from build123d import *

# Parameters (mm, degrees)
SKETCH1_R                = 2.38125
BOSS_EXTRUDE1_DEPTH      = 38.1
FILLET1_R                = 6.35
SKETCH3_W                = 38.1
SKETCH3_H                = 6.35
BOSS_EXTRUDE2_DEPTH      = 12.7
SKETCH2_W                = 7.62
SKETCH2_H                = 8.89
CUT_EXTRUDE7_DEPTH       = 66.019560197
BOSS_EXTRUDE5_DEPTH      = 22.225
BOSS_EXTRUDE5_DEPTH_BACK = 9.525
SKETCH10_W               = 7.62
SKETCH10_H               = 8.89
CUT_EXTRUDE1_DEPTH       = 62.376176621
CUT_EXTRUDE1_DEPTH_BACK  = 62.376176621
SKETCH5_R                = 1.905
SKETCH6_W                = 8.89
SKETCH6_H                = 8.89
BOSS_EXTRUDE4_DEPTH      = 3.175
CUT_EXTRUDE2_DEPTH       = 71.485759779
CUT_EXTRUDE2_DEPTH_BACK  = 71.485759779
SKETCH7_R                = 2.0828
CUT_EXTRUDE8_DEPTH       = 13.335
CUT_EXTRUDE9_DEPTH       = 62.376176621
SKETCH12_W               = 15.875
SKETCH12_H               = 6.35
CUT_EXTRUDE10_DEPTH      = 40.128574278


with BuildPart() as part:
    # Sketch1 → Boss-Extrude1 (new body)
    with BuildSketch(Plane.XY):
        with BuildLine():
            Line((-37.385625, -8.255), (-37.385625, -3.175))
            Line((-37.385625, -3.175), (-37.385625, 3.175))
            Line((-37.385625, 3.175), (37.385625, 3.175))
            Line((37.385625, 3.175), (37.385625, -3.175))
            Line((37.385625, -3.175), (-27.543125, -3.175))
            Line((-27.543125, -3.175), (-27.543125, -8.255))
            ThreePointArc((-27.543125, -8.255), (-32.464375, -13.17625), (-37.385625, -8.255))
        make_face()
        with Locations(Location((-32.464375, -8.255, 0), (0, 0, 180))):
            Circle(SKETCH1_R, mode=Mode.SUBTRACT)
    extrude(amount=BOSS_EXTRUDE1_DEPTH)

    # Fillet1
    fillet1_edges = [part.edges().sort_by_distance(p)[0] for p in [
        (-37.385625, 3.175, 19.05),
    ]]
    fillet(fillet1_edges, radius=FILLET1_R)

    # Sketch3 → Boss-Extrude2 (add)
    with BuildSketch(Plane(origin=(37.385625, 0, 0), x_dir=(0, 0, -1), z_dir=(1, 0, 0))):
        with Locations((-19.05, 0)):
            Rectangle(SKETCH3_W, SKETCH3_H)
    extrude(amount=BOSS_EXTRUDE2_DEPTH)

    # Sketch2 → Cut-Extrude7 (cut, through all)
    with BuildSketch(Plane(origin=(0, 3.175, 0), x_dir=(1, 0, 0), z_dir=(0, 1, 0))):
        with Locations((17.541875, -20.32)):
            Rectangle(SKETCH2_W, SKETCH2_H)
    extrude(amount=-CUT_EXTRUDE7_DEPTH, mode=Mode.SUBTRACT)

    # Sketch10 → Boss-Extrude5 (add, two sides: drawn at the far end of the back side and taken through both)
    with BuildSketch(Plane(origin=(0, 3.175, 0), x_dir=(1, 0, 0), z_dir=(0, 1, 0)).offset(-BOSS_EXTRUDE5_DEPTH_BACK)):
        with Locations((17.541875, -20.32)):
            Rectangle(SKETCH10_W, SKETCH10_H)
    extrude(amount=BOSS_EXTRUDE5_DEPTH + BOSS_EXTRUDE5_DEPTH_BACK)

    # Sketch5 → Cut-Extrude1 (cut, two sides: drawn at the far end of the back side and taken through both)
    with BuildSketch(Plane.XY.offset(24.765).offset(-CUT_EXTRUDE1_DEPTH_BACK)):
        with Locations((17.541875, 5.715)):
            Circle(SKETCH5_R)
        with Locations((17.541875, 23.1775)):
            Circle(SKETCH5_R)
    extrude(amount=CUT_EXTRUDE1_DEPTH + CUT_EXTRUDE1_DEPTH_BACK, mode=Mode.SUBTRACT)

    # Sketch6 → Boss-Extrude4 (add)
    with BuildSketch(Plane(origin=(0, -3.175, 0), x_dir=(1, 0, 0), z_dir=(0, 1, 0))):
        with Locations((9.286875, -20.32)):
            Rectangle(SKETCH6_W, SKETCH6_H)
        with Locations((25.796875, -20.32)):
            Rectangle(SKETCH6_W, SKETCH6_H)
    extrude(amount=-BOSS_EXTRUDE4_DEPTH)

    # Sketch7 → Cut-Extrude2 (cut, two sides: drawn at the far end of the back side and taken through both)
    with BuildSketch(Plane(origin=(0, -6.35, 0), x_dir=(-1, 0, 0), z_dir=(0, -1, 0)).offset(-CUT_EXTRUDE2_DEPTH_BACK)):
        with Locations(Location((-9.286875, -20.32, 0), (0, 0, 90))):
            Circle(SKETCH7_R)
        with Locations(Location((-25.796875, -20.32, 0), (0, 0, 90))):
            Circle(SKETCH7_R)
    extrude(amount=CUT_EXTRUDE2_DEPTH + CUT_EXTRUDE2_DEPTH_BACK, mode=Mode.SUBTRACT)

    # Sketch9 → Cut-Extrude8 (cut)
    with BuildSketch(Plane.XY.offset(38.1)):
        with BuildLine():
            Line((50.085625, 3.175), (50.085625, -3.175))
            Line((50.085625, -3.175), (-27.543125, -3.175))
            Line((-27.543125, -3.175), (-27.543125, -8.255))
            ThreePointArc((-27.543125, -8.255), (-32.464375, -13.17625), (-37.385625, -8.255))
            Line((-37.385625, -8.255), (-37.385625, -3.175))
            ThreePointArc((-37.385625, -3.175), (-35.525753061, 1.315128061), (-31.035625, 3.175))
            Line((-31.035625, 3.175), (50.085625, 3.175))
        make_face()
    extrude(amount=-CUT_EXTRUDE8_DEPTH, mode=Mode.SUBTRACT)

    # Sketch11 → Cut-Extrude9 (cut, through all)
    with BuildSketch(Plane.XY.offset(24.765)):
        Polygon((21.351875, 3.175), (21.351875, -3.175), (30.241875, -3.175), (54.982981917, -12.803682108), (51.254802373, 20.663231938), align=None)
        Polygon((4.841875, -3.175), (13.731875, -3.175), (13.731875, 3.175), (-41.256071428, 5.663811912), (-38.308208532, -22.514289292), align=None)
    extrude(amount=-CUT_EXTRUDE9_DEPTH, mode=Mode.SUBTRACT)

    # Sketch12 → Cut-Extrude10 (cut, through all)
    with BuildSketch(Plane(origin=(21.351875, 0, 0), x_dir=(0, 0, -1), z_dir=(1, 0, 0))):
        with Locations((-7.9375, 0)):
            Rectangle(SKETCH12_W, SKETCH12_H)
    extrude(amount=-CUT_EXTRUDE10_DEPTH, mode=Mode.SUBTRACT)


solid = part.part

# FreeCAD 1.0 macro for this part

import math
import FreeCAD as App
import Part
import Sketcher

V = App.Vector
Q = App.Units.Quantity


def edges_at(feature, points):
    """Names of the edges that pass closest to the given points."""
    edges = feature.Shape.Edges
    near = lambda p: min(range(len(edges)), key=lambda i: edges[i].distToShape(Part.Vertex(*p))[0])
    return sorted({f"Edge{near(p) + 1}" for p in points})


def add_polygon(sketch, points):
    """Adds a closed chain of lines whose ends are joined by coincident constraints."""
    first, n = sketch.GeometryCount, len(points)
    for a, b in zip(points, points[1:] + points[:1]):
        sketch.addGeometry(Part.LineSegment(App.Vector(*a, 0), App.Vector(*b, 0)), False)
    for i in range(n):
        sketch.addConstraint(Sketcher.Constraint("Coincident", first + i, 2, first + (i + 1) % n, 1))

doc = App.newDocument("Part")
body = doc.addObject("PartDesign::Body", "Body")

# Sketch on XY plane
sketch1 = doc.addObject("Sketcher::SketchObject", "Sketch")
body.addObject(sketch1)
sketch1.AttachmentSupport = (doc.XY_Plane, [""])
sketch1.MapMode = "FlatFace"
sketch1.addGeometry([
    Part.LineSegment(V(-37.385625, 3.175, 0), V(-37.385625, -8.255, 0)),  # 0
    Part.ArcOfCircle(Part.Circle(V(-32.464375, -8.255, 0), V(0, 0, 1), 4.92125), math.radians(180), math.radians(360)),  # 1
    Part.LineSegment(V(-27.543125, -8.255, 0), V(-27.543125, -3.175, 0)),  # 2
    Part.LineSegment(V(-27.543125, -3.175, 0), V(37.385625, -3.175, 0)),  # 3
    Part.LineSegment(V(37.385625, -3.175, 0), V(37.385625, 3.175, 0)),  # 4
    Part.LineSegment(V(37.385625, 3.175, 0), V(-37.385625, 3.175, 0)),  # 5
    Part.Circle(V(-32.464375, -8.255, 0), V(0, 0, 1), 2.38125),  # 6
], False)
sketch1.addConstraint([
    Sketcher.Constraint("Tangent", 0, 2, 1, 1),
    Sketcher.Constraint("Tangent", 1, 2, 2, 1),
    Sketcher.Constraint("Coincident", 2, 2, 3, 1),
    Sketcher.Constraint("Coincident", 3, 2, 4, 1),
    Sketcher.Constraint("Coincident", 4, 2, 5, 1),
    Sketcher.Constraint("Coincident", 5, 2, 0, 1),
    Sketcher.Constraint("Vertical", 0),
    Sketcher.Constraint("Vertical", 2),
    Sketcher.Constraint("Horizontal", 3),
    Sketcher.Constraint("Vertical", 4),
    Sketcher.Constraint("Horizontal", 5),
    Sketcher.Constraint("Coincident", 6, 3, 1, 3),
    Sketcher.Constraint("Symmetric", 3, 2, 5, 2, -1, 1),
    Sketcher.Constraint("Diameter", 6, Q("0.1875 in")),
    Sketcher.Constraint("DistanceY", 2, 1, 2, 2, Q("0.2 in")),
    Sketcher.Constraint("DistanceY", 0, 2, 0, 1, Q("0.45 in")),
    Sketcher.Constraint("DistanceX", 1, 3, 3, 2, Q("2.75 in")),
    Sketcher.Constraint("Radius", 1, Q("4.92125 mm")),
])
pad1 = doc.addObject("PartDesign::Pad", "Pad")
body.addObject(pad1)
pad1.Profile = sketch1
pad1.Length = Q("1.5 in")
doc.recompute()

fillet = doc.addObject("PartDesign::Fillet", "Fillet")
body.addObject(fillet)
fillet.Base = (pad1, edges_at(pad1, [(-37.386, 3.175, 19.05)]))
fillet.Radius = Q("0.25 in")

# Sketch on YZ plane
sketch2 = doc.addObject("Sketcher::SketchObject", "Sketch001")
body.addObject(sketch2)
sketch2.AttachmentSupport = (doc.YZ_Plane, [""])
sketch2.MapMode = "FlatFace"
sketch2.AttachmentOffset = App.Placement(V(0, 0, 37.385625), App.Rotation())
add_polygon(sketch2, [(3.175, 38.1), (-3.175, 38.1), (-3.175, 0), (3.175, 0)])  # lines 0-3
sketch2.addConstraint([
    Sketcher.Constraint("Horizontal", 0),
    Sketcher.Constraint("Vertical", 1),
    Sketcher.Constraint("Horizontal", 2),
    Sketcher.Constraint("Vertical", 3),
    Sketcher.Constraint("Symmetric", 1, 2, 2, 2, -1, 1),
    Sketcher.Constraint("DistanceY", 1, 2, 1, 1, Q("1.5 in")),
    Sketcher.Constraint("DistanceX", 0, 2, 0, 1, Q("0.25 in")),
])
pad2 = doc.addObject("PartDesign::Pad", "Pad001")
body.addObject(pad2)
pad2.Profile = sketch2
pad2.Length = Q("0.5 in")

# Sketch on XZ plane
sketch3 = doc.addObject("Sketcher::SketchObject", "Sketch002")
body.addObject(sketch3)
sketch3.AttachmentSupport = (doc.XZ_Plane, [""])
sketch3.MapMode = "FlatFace"
sketch3.AttachmentOffset = App.Placement(V(0, 0, -0.125 * 25.4), App.Rotation())
add_polygon(sketch3, [(13.731875, 15.875), (13.731875, 24.765), (21.351875, 24.765), (21.351875, 15.875)])  # lines 0-3
sketch3.addConstraint([
    Sketcher.Constraint("Vertical", 0),
    Sketcher.Constraint("Horizontal", 1),
    Sketcher.Constraint("Vertical", 2),
    Sketcher.Constraint("Horizontal", 3),
    Sketcher.Constraint("DistanceX", 1, 1, 1, 2, Q("0.3 in")),
    Sketcher.Constraint("DistanceY", 0, 1, 0, 2, Q("0.35 in")),
    Sketcher.Constraint("DistanceY", -1, 1, 0, 2, Q("0.975 in")),
    Sketcher.Constraint("DistanceX", -1, 1, 0, 2, Q("13.731875 mm")),
])
pocket1 = doc.addObject("PartDesign::Pocket", "Pocket")
body.addObject(pocket1)
pocket1.Profile = sketch3
pocket1.Type = "ThroughAll"
pocket1.Reversed = True

# Sketch on XZ plane
sketch4 = doc.addObject("Sketcher::SketchObject", "Sketch003")
body.addObject(sketch4)
sketch4.AttachmentSupport = (doc.XZ_Plane, [""])
sketch4.MapMode = "FlatFace"
sketch4.AttachmentOffset = App.Placement(V(0, 0, -0.125 * 25.4), App.Rotation())
add_polygon(sketch4, [(13.731875, 15.875), (13.731875, 24.765), (21.351875, 24.765), (21.351875, 15.875)])  # lines 0-3
sketch4.addConstraint([
    Sketcher.Constraint("Vertical", 0),
    Sketcher.Constraint("Horizontal", 1),
    Sketcher.Constraint("Vertical", 2),
    Sketcher.Constraint("Horizontal", 3),
    Sketcher.Constraint("DistanceX", 1, 1, 1, 2, Q("0.3 in")),
    Sketcher.Constraint("DistanceY", 0, 1, 0, 2, Q("0.35 in")),
    Sketcher.Constraint("DistanceY", -1, 1, 0, 2, Q("0.975 in")),
    Sketcher.Constraint("DistanceX", -1, 1, 0, 2, Q("13.731875 mm")),
])
pad3 = doc.addObject("PartDesign::Pad", "Pad002")
body.addObject(pad3)
pad3.Profile = sketch4
pad3.Type = "TwoLengths"
pad3.Length = Q("0.875 in")
pad3.Length2 = Q("0.375 in")
pad3.Reversed = True

# Sketch on XY plane
sketch5 = doc.addObject("Sketcher::SketchObject", "Sketch004")
body.addObject(sketch5)
sketch5.AttachmentSupport = (doc.XY_Plane, [""])
sketch5.MapMode = "FlatFace"
sketch5.AttachmentOffset = App.Placement(V(0, 0, 0.975 * 25.4), App.Rotation())
sketch5.addGeometry([
    Part.Circle(V(17.541875, 5.715, 0), V(0, 0, 1), 1.905),
    Part.Circle(V(17.541875, 23.1775, 0), V(0, 0, 1), 1.905),
], False)
sketch5.addConstraint([
    Sketcher.Constraint("Equal", 0, 1),
    Sketcher.Constraint("Vertical", 0, 3, 1, 3),
    Sketcher.Constraint("Diameter", 0, Q("0.15 in")),
    Sketcher.Constraint("DistanceY", -1, 1, 0, 3, Q("0.225 in")),
    Sketcher.Constraint("DistanceY", 0, 3, 1, 3, Q("0.6875 in")),
    Sketcher.Constraint("DistanceX", -1, 1, 0, 3, Q("17.541875 mm")),
])
pocket2 = doc.addObject("PartDesign::Pocket", "Pocket001")
body.addObject(pocket2)
pocket2.Profile = sketch5
pocket2.Type = "ThroughAll"
pocket2.Midplane = True

# Sketch on XZ plane
sketch6 = doc.addObject("Sketcher::SketchObject", "Sketch005")
body.addObject(sketch6)
sketch6.AttachmentSupport = (doc.XZ_Plane, [""])
sketch6.MapMode = "FlatFace"
sketch6.AttachmentOffset = App.Placement(V(0, 0, 0.125 * 25.4), App.Rotation())
add_polygon(sketch6, [(4.841875, 15.875), (4.841875, 24.765), (13.731875, 24.765), (13.731875, 15.875)])  # lines 0-3
add_polygon(sketch6, [(21.351875, 15.875), (21.351875, 24.765), (30.241875, 24.765), (30.241875, 15.875)])  # lines 4-7
sketch6.addConstraint([
    Sketcher.Constraint("Vertical", 0),
    Sketcher.Constraint("Horizontal", 1),
    Sketcher.Constraint("Vertical", 2),
    Sketcher.Constraint("Horizontal", 3),
    Sketcher.Constraint("Vertical", 4),
    Sketcher.Constraint("Horizontal", 5),
    Sketcher.Constraint("Vertical", 6),
    Sketcher.Constraint("Horizontal", 7),
    Sketcher.Constraint("Horizontal", 1, 2, 4, 2),
    Sketcher.Constraint("Horizontal", 3, 2, 6, 2),
    Sketcher.Constraint("Equal", 3, 5),
    Sketcher.Constraint("Equal", 7, 0),
    Sketcher.Constraint("DistanceX", 0, 2, 5, 2, Q("1 in")),
    Sketcher.Constraint("DistanceX", 1, 1, 1, 2, Q("0.35 in")),
    Sketcher.Constraint("DistanceY", -1, 1, 0, 2, Q("0.975 in")),
    Sketcher.Constraint("DistanceX", -1, 1, 0, 2, Q("4.841875 mm")),
])
pad4 = doc.addObject("PartDesign::Pad", "Pad003")
body.addObject(pad4)
pad4.Profile = sketch6
pad4.Length = Q("0.125 in")

# Sketch on XZ plane
sketch7 = doc.addObject("Sketcher::SketchObject", "Sketch006")
body.addObject(sketch7)
sketch7.AttachmentSupport = (doc.XZ_Plane, [""])
sketch7.MapMode = "FlatFace"
sketch7.AttachmentOffset = App.Placement(V(0, 0, 0.25 * 25.4), App.Rotation())
sketch7.addGeometry([
    Part.Circle(V(9.286875, 20.32, 0), V(0, 0, 1), 2.0828),
    Part.Circle(V(25.796875, 20.32, 0), V(0, 0, 1), 2.0828),
], False)
sketch7.addConstraint([
    Sketcher.Constraint("Equal", 0, 1),
    Sketcher.Constraint("Horizontal", 0, 3, 1, 3),
    Sketcher.Constraint("Diameter", 0, Q("0.164 in")),
    Sketcher.Constraint("DistanceY", -1, 1, 0, 3, Q("0.8 in")),
    Sketcher.Constraint("DistanceX", 0, 3, 1, 3, Q("0.65 in")),
    Sketcher.Constraint("DistanceX", -1, 1, 1, 3, Q("1.015625 in")),
])
pocket3 = doc.addObject("PartDesign::Pocket", "Pocket002")
body.addObject(pocket3)
pocket3.Profile = sketch7
pocket3.Type = "ThroughAll"
pocket3.Midplane = True

# Sketch on XY plane
sketch8 = doc.addObject("Sketcher::SketchObject", "Sketch007")
body.addObject(sketch8)
sketch8.AttachmentSupport = (doc.XY_Plane, [""])
sketch8.MapMode = "FlatFace"
sketch8.AttachmentOffset = App.Placement(V(0, 0, 1.5 * 25.4), App.Rotation())
sketch8.addGeometry([
    Part.LineSegment(V(50.085625, -3.175, 0), V(50.085625, 3.175, 0)),  # 0
    Part.LineSegment(V(50.085625, 3.175, 0), V(-31.035625, 3.175, 0)),  # 1
    Part.ArcOfCircle(Part.Circle(V(-31.035625, -3.175, 0), V(0, 0, 1), 6.35), math.radians(90), math.radians(180)),  # 2
    Part.LineSegment(V(-37.385625, -3.175, 0), V(-37.385625, -8.255, 0)),  # 3
    Part.ArcOfCircle(Part.Circle(V(-32.464375, -8.255, 0), V(0, 0, 1), 4.92125), math.radians(180), math.radians(360)),  # 4
    Part.LineSegment(V(-27.543125, -8.255, 0), V(-27.543125, -3.175, 0)),  # 5
    Part.LineSegment(V(-27.543125, -3.175, 0), V(50.085625, -3.175, 0)),  # 6
], False)
sketch8.addConstraint([
    Sketcher.Constraint("Coincident", 0, 2, 1, 1),
    Sketcher.Constraint("Tangent", 1, 2, 2, 1),
    Sketcher.Constraint("Tangent", 2, 2, 3, 1),
    Sketcher.Constraint("Tangent", 3, 2, 4, 1),
    Sketcher.Constraint("Tangent", 4, 2, 5, 1),
    Sketcher.Constraint("Coincident", 5, 2, 6, 1),
    Sketcher.Constraint("Coincident", 6, 2, 0, 1),
    Sketcher.Constraint("Vertical", 0),
    Sketcher.Constraint("Horizontal", 1),
    Sketcher.Constraint("Vertical", 3),
    Sketcher.Constraint("Vertical", 5),
    Sketcher.Constraint("Horizontal", 6),
    Sketcher.Constraint("Horizontal", 2, 2, 5, 2),
    Sketcher.Constraint("Radius", 2, Q("0.25 in")),
    Sketcher.Constraint("DistanceY", 3, 2, 3, 1, Q("0.2 in")),
    Sketcher.Constraint("DistanceX", 4, 3, 0, 2, Q("3.25 in")),
    Sketcher.Constraint("DistanceY", 2, 3, -1, 1, Q("0.125 in")),
    Sketcher.Constraint("Radius", 4, Q("4.92125 mm")),
    Sketcher.Constraint("DistanceX", 2, 3, -1, 1, Q("31.035625 mm")),
])
pocket4 = doc.addObject("PartDesign::Pocket", "Pocket003")
body.addObject(pocket4)
pocket4.Profile = sketch8
pocket4.Length = Q("0.525 in")

# Sketch on XY plane
sketch9 = doc.addObject("Sketcher::SketchObject", "Sketch008")
body.addObject(sketch9)
sketch9.AttachmentSupport = (doc.XY_Plane, [""])
sketch9.MapMode = "FlatFace"
sketch9.AttachmentOffset = App.Placement(V(0, 0, 0.975 * 25.4), App.Rotation())
add_polygon(sketch9, [(21.351875, 3.175), (21.351875, -3.175), (30.241875, -3.175), (54.982982, -12.803682), (51.254802, 20.663232)])  # lines 0-4
add_polygon(sketch9, [(4.841875, -3.175), (13.731875, -3.175), (13.731875, 3.175), (-41.256071, 5.663812), (-38.308209, -22.514289)])  # lines 5-9
sketch9.addConstraint([
    Sketcher.Constraint("Vertical", 0),
    Sketcher.Constraint("Horizontal", 1),
    Sketcher.Constraint("Horizontal", 5),
    Sketcher.Constraint("Vertical", 6),
    Sketcher.Constraint("Horizontal", 1, 2, 5, 2),
    Sketcher.Constraint("Horizontal", 4, 2, 6, 2),
    Sketcher.Constraint("Equal", 1, 5),
    Sketcher.Constraint("DistanceX", 9, 2, 1, 2, Q("1 in")),
    Sketcher.Constraint("DistanceX", 1, 1, 1, 2, Q("0.35 in")),
    Sketcher.Constraint("DistanceY", 0, 2, 0, 1, Q("0.25 in")),
    Sketcher.Constraint("DistanceY", 0, 2, -1, 1, Q("0.125 in")),
    Sketcher.Constraint("DistanceY", 8, 2, 7, 2, Q("28.178101 mm")),
    Sketcher.Constraint("Distance", 3, Q("33.673931 mm")),
    Sketcher.Constraint("Distance", 7, Q("55.044241 mm")),
    Sketcher.Constraint("DistanceX", -1, 1, 2, 2, Q("54.982982 mm")),
    Sketcher.Constraint("DistanceY", -1, 1, 3, 2, Q("20.663232 mm")),
    Sketcher.Constraint("DistanceX", 7, 2, -1, 1, Q("41.256071 mm")),
    Sketcher.Constraint("DistanceY", -1, 1, 7, 2, Q("5.663812 mm")),
    Sketcher.Constraint("DistanceX", 8, 2, -1, 1, Q("38.308209 mm")),
    Sketcher.Constraint("DistanceX", 3, 2, 2, 2, Q("3.72818 mm")),
])
pocket5 = doc.addObject("PartDesign::Pocket", "Pocket004")
body.addObject(pocket5)
pocket5.Profile = sketch9
pocket5.Type = "ThroughAll"

# Sketch on YZ plane
sketch10 = doc.addObject("Sketcher::SketchObject", "Sketch009")
body.addObject(sketch10)
sketch10.AttachmentSupport = (doc.YZ_Plane, [""])
sketch10.MapMode = "FlatFace"
sketch10.AttachmentOffset = App.Placement(V(0, 0, 21.351875), App.Rotation())
add_polygon(sketch10, [(3.175, 15.875), (-3.175, 15.875), (-3.175, 0), (3.175, 0)])  # lines 0-3
sketch10.addConstraint([
    Sketcher.Constraint("Horizontal", 0),
    Sketcher.Constraint("Vertical", 1),
    Sketcher.Constraint("Horizontal", 2),
    Sketcher.Constraint("Vertical", 3),
    Sketcher.Constraint("Symmetric", 1, 2, 2, 2, -1, 1),
    Sketcher.Constraint("DistanceX", 0, 2, 0, 1, Q("0.25 in")),
    Sketcher.Constraint("DistanceY", 1, 2, 1, 1, Q("0.625 in")),
])
pocket6 = doc.addObject("PartDesign::Pocket", "Pocket005")
body.addObject(pocket6)
pocket6.Profile = sketch10
pocket6.Type = "ThroughAll"

doc.recompute()
